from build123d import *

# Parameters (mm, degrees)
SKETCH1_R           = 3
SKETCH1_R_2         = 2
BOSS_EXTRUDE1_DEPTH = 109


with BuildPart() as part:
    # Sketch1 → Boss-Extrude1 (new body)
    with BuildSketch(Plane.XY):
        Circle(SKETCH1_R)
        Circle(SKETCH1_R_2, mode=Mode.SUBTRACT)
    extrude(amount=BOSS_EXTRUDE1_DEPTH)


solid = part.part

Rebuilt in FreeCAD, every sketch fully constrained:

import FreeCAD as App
import Part
import Sketcher
from FreeCAD import Vector

doc = App.newDocument("Part")
body = doc.addObject("PartDesign::Body", "Body")

# Sketch on XY plane
sketch1 = body.newObject("Sketcher::SketchObject", "Sketch")
sketch1.AttachmentSupport = (doc.getObject("XY_Plane"), [""])
sketch1.MapMode = "FlatFace"
sketch1.addGeometry([
    Part.Circle(Vector(0, 0, 0), Vector(0, 0, 1), 3),
    Part.Circle(Vector(0, 0, 0), Vector(0, 0, 1), 2),
], False)
sketch1.addConstraint([
    Sketcher.Constraint("Coincident", 0, 3, -1, 1),
    Sketcher.Constraint("Coincident", 1, 3, -1, 1),
    Sketcher.Constraint("Diameter", 0, 6.0),
    Sketcher.Constraint("Diameter", 1, 4.0),
])
pad1 = body.newObject("PartDesign::Pad", "Pad")
pad1.Profile = sketch1
pad1.Length = 109

doc.recompute()
